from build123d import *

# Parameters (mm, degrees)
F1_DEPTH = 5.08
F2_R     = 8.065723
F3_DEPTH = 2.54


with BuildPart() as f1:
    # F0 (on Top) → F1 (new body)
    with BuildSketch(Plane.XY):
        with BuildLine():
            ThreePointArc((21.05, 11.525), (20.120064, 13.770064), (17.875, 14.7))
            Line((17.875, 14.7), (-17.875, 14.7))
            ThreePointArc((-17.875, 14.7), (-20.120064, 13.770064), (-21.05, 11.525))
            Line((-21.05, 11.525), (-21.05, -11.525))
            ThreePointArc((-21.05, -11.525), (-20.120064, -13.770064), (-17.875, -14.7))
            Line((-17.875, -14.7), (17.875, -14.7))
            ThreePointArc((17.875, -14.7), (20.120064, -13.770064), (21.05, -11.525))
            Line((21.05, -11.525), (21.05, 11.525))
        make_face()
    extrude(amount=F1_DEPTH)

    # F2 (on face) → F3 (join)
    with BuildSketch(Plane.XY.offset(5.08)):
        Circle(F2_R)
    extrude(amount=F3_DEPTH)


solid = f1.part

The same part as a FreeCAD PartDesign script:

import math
import FreeCAD as App
import Part
import Sketcher
from FreeCAD import Vector
Q = App.Units.Quantity

doc = App.newDocument("Part")
body = doc.addObject("PartDesign::Body", "Body")

sketch1 = doc.addObject("Sketcher::SketchObject", "Sketch")
body.addObject(sketch1)
sketch1.AttachmentSupport = (doc.XY_Plane, [""])
sketch1.MapMode = "FlatFace"
sketch1.addGeometry(Part.ArcOfCircle(Part.Circle(Vector(17.9, 11.5, 0), Vector(0, 0, 1), 3.2), math.radians(0), math.radians(90)), False)
sketch1.addGeometry(Part.LineSegment(Vector(17.9, 14.7, 0), Vector(-17.9, 14.7, 0)), False)
sketch1.addGeometry(Part.ArcOfCircle(Part.Circle(Vector(-17.9, 11.5, 0), Vector(0, 0, 1), 3.2), math.radians(90), math.radians(180)), False)
sketch1.addGeometry(Part.LineSegment(Vector(-21.1, 11.5, 0), Vector(-21.1, -11.5, 0)), False)
sketch1.addGeometry(Part.ArcOfCircle(Part.Circle(Vector(-17.9, -11.5, 0), Vector(0, 0, 1), 3.2), math.radians(-180), math.radians(-90)), False)
sketch1.addGeometry(Part.LineSegment(Vector(-17.9, -14.7, 0), Vector(17.9, -14.7, 0)), False)
sketch1.addGeometry(Part.ArcOfCircle(Part.Circle(Vector(17.9, -11.5, 0), Vector(0, 0, 1), 3.2), math.radians(-90), math.radians(0)), False)
sketch1.addGeometry(Part.LineSegment(Vector(21.1, -11.5, 0), Vector(21.1, 11.5, 0)), False)
sketch1.addConstraint(Sketcher.Constraint("Tangent", 0, 2, 1, 1))
sketch1.addConstraint(Sketcher.Constraint("Tangent", 1, 2, 2, 1))
sketch1.addConstraint(Sketcher.Constraint("Tangent", 2, 2, 3, 1))
sketch1.addConstraint(Sketcher.Constraint("Tangent", 3, 2, 4, 1))
sketch1.addConstraint(Sketcher.Constraint("Tangent", 4, 2, 5, 1))
sketch1.addConstraint(Sketcher.Constraint("Tangent", 5, 2, 6, 1))
sketch1.addConstraint(Sketcher.Constraint("Tangent", 6, 2, 7, 1))
sketch1.addConstraint(Sketcher.Constraint("Tangent", 7, 2, 0, 1))
sketch1.addConstraint(Sketcher.Constraint("Horizontal", 1))
sketch1.addConstraint(Sketcher.Constraint("Vertical", 3))
sketch1.addConstraint(Sketcher.Constraint("Horizontal", 5))
sketch1.addConstraint(Sketcher.Constraint("Vertical", 7))
sketch1.addConstraint(Sketcher.Constraint("Equal", 0, 2))
sketch1.addConstraint(Sketcher.Constraint("Equal", 2, 4))
sketch1.addConstraint(Sketcher.Constraint("Equal", 4, 6))
sketch1.addConstraint(Sketcher.Constraint("Symmetric", 0, 3, 4, 3, -1, 1))
sketch1.addConstraint(Sketcher.Constraint("Radius", 0, Q("0.125 in")))
sketch1.addConstraint(Sketcher.Constraint("DistanceX", 1, 2, 1, 1, 35.75))
sketch1.addConstraint(Sketcher.Constraint("DistanceY", 3, 2, 3, 1, 23.05))
pad1 = doc.addObject("PartDesign::Pad", "Pad")
body.addObject(pad1)
pad1.Profile = sketch1
pad1.Length = Q("0.2 in")

sketch2 = doc.addObject("Sketcher::SketchObject", "Sketch001")
body.addObject(sketch2)
sketch2.AttachmentSupport = (doc.XY_Plane, [""])
sketch2.MapMode = "FlatFace"
sketch2.AttachmentOffset = App.Placement(Vector(0, 0, 0.2 * 25.4), App.Rotation())
sketch2.addGeometry(Part.Circle(Vector(0, 0, 0), Vector(0, 0, 1), 8), False)
sketch2.addConstraint(Sketcher.Constraint("Coincident", 0, 3, -1, 1))
sketch2.addConstraint(Sketcher.Constraint("Diameter", 0, 16.131446))
pad2 = doc.addObject("PartDesign::Pad", "Pad001")
body.addObject(pad2)
pad2.Profile = sketch2
pad2.Length = Q("0.1 in")

doc.recompute()
